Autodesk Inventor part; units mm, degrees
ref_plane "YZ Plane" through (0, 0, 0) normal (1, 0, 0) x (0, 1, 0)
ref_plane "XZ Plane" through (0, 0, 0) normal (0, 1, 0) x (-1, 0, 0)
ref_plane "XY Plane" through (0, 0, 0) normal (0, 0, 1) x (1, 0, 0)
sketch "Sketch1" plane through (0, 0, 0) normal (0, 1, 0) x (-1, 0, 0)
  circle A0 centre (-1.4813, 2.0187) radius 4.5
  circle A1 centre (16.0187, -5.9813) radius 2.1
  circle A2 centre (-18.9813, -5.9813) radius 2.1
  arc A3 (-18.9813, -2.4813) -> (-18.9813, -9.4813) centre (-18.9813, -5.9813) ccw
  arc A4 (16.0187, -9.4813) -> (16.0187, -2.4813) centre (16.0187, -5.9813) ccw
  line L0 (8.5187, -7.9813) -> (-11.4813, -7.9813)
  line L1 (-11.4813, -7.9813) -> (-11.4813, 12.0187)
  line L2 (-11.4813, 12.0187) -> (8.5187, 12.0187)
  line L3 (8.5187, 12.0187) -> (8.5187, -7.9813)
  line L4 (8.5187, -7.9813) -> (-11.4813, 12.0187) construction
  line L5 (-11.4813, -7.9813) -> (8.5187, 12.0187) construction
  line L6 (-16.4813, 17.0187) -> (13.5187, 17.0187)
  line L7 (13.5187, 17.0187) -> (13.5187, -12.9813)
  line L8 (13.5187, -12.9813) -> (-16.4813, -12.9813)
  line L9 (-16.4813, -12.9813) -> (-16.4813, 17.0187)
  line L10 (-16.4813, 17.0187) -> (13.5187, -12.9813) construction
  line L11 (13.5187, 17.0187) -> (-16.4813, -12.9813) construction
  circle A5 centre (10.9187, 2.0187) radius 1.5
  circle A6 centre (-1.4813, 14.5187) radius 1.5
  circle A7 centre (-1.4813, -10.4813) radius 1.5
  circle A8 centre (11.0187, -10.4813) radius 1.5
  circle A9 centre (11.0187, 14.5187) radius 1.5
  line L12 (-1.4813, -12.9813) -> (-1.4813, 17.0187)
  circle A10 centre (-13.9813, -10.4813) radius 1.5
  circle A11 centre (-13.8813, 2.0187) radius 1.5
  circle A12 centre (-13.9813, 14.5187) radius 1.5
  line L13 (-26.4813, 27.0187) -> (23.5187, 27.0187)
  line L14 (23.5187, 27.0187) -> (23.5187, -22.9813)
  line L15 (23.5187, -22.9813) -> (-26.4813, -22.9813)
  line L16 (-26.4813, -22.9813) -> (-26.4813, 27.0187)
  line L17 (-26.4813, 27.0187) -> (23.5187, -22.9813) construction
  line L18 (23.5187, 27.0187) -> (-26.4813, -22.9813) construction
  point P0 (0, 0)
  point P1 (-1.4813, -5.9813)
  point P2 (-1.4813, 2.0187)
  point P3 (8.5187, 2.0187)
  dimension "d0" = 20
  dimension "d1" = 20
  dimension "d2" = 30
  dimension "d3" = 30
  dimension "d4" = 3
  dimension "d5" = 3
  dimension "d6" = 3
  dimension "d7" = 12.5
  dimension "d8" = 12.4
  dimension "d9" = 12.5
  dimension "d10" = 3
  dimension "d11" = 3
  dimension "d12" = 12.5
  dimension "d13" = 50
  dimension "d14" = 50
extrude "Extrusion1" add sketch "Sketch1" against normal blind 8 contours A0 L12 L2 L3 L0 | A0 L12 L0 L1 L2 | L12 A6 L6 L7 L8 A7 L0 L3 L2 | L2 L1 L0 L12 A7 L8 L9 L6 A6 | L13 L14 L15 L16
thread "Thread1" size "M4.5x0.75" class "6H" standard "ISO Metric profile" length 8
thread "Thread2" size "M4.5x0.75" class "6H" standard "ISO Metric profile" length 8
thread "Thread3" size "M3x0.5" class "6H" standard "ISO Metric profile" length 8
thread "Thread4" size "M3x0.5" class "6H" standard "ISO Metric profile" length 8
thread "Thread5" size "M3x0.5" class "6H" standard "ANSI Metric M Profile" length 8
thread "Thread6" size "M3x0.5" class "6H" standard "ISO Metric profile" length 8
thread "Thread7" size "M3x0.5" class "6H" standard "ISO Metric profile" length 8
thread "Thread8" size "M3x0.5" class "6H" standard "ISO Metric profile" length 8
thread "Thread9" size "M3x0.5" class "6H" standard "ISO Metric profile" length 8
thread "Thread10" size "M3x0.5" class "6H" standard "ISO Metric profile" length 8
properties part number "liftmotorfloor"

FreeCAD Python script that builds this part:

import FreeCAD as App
import Part
import Sketcher
from FreeCAD import Vector


def add_polygon(sketch, points):
    """Adds a closed chain of lines whose ends are joined by coincident constraints."""
    first, n = sketch.GeometryCount, len(points)
    for a, b in zip(points, points[1:] + points[:1]):
        sketch.addGeometry(Part.LineSegment(App.Vector(*a, 0), App.Vector(*b, 0)), False)
    for i in range(n):
        sketch.addConstraint(Sketcher.Constraint("Coincident", first + i, 2, first + (i + 1) % n, 1))

doc = App.newDocument("Part")
body = doc.addObject("PartDesign::Body", "Body")

sketch1 = doc.addObject("Sketcher::SketchObject", "Sketch")
body.addObject(sketch1)
sketch1.AttachmentSupport = (doc.XZ_Plane, [""])
sketch1.MapMode = "FlatFace"
add_polygon(sketch1, [(-23.5187, 27.0187), (26.4813, 27.0187), (26.4813, -22.9813), (-23.5187, -22.9813)])
sketch1.addGeometry(Part.Circle(Vector(1.4813, 2.0187, 0), Vector(0, 0, 1), 4.5), False)
sketch1.addGeometry(Part.Circle(Vector(1.4813, 14.5187, 0), Vector(0, 0, 1), 1.5), False)
sketch1.addGeometry(Part.Circle(Vector(1.4813, -10.4813, 0), Vector(0, 0, 1), 1.5), False)
sketch1.addGeometry(Part.Circle(Vector(-11.0187, -10.4813, 0), Vector(0, 0, 1), 1.5), False)
sketch1.addGeometry(Part.Circle(Vector(-10.9187, 2.0187, 0), Vector(0, 0, 1), 1.5), False)
sketch1.addGeometry(Part.Circle(Vector(-11.0187, 14.5187, 0), Vector(0, 0, 1), 1.5), False)
sketch1.addGeometry(Part.Circle(Vector(13.9813, 14.5187, 0), Vector(0, 0, 1), 1.5), False)
sketch1.addGeometry(Part.Circle(Vector(13.9813, -10.4813, 0), Vector(0, 0, 1), 1.5), False)
sketch1.addGeometry(Part.Circle(Vector(13.8813, 2.0187, 0), Vector(0, 0, 1), 1.5), False)
sketch1.addGeometry(Part.Circle(Vector(18.9813, -5.9813, 0), Vector(0, 0, 1), 2.1), False)
sketch1.addGeometry(Part.Circle(Vector(-16.0187, -5.9813, 0), Vector(0, 0, 1), 2.1), False)
sketch1.addConstraint(Sketcher.Constraint("Horizontal", 0))
sketch1.addConstraint(Sketcher.Constraint("Vertical", 1))
sketch1.addConstraint(Sketcher.Constraint("Horizontal", 2))
sketch1.addConstraint(Sketcher.Constraint("Vertical", 3))
sketch1.addConstraint(Sketcher.Constraint("Equal", 5, 6))
sketch1.addConstraint(Sketcher.Constraint("Equal", 6, 7))
sketch1.addConstraint(Sketcher.Constraint("Equal", 7, 8))
sketch1.addConstraint(Sketcher.Constraint("Equal", 8, 9))
sketch1.addConstraint(Sketcher.Constraint("Equal", 9, 10))
sketch1.addConstraint(Sketcher.Constraint("Equal", 10, 11))
sketch1.addConstraint(Sketcher.Constraint("Equal", 11, 12))
sketch1.addConstraint(Sketcher.Constraint("Equal", 13, 14))
sketch1.addConstraint(Sketcher.Constraint("Horizontal", 6, 3, 7, 3))
sketch1.addConstraint(Sketcher.Constraint("Horizontal", 4, 3, 8, 3))
sketch1.addConstraint(Sketcher.Constraint("Horizontal", 5, 3, 9, 3))
sketch1.addConstraint(Sketcher.Constraint("Horizontal", 9, 3, 10, 3))
sketch1.addConstraint(Sketcher.Constraint("Horizontal", 7, 3, 11, 3))
sketch1.addConstraint(Sketcher.Constraint("Horizontal", 8, 3, 12, 3))
sketch1.addConstraint(Sketcher.Constraint("Horizontal", 13, 3, 14, 3))
sketch1.addConstraint(Sketcher.Constraint("Vertical", 4, 3, 5, 3))
sketch1.addConstraint(Sketcher.Constraint("Vertical", 5, 3, 6, 3))
sketch1.addConstraint(Sketcher.Constraint("Vertical", 7, 3, 9, 3))
sketch1.addConstraint(Sketcher.Constraint("Vertical", 10, 3, 11, 3))
sketch1.addConstraint(Sketcher.Constraint("Equal", 2, 1))
sketch1.addConstraint(Sketcher.Constraint("Diameter", 5, 3.0))
sketch1.addConstraint(Sketcher.Constraint("DistanceX", 0, 1, 0, 2, 50.0))
sketch1.addConstraint(Sketcher.Constraint("Diameter", 4, 9.0))
sketch1.addConstraint(Sketcher.Constraint("Diameter", 13, 4.2))
sketch1.addConstraint(Sketcher.Constraint("DistanceY", 4, 3, 5, 3, 12.5))
sketch1.addConstraint(Sketcher.Constraint("DistanceY", 6, 3, 4, 3, 12.5))
sketch1.addConstraint(Sketcher.Constraint("DistanceX", 7, 3, 6, 3, 12.5))
sketch1.addConstraint(Sketcher.Constraint("DistanceX", 8, 3, 4, 3, 12.4))
sketch1.addConstraint(Sketcher.Constraint("DistanceX", 5, 3, 10, 3, 12.5))
sketch1.addConstraint(Sketcher.Constraint("DistanceX", 4, 3, 12, 3, 12.4))
sketch1.addConstraint(Sketcher.Constraint("DistanceX", 10, 3, 0, 2, 12.5))
sketch1.addConstraint(Sketcher.Constraint("DistanceY", 10, 3, 0, 2, 12.5))
sketch1.addConstraint(Sketcher.Constraint("DistanceX", 11, 3, 13, 3, 5.0))
sketch1.addConstraint(Sketcher.Constraint("DistanceY", 13, 3, 12, 3, 8.0))
sketch1.addConstraint(Sketcher.Constraint("DistanceX", 14, 3, 7, 3, 5.0))
sketch1.addConstraint(Sketcher.Constraint("DistanceX", -1, 1, 4, 3, 1.4813))
sketch1.addConstraint(Sketcher.Constraint("DistanceY", -1, 1, 4, 3, 2.0187))
pad1 = doc.addObject("PartDesign::Pad", "Pad")
body.addObject(pad1)
pad1.Profile = sketch1
pad1.Length = 8

doc.recompute()
